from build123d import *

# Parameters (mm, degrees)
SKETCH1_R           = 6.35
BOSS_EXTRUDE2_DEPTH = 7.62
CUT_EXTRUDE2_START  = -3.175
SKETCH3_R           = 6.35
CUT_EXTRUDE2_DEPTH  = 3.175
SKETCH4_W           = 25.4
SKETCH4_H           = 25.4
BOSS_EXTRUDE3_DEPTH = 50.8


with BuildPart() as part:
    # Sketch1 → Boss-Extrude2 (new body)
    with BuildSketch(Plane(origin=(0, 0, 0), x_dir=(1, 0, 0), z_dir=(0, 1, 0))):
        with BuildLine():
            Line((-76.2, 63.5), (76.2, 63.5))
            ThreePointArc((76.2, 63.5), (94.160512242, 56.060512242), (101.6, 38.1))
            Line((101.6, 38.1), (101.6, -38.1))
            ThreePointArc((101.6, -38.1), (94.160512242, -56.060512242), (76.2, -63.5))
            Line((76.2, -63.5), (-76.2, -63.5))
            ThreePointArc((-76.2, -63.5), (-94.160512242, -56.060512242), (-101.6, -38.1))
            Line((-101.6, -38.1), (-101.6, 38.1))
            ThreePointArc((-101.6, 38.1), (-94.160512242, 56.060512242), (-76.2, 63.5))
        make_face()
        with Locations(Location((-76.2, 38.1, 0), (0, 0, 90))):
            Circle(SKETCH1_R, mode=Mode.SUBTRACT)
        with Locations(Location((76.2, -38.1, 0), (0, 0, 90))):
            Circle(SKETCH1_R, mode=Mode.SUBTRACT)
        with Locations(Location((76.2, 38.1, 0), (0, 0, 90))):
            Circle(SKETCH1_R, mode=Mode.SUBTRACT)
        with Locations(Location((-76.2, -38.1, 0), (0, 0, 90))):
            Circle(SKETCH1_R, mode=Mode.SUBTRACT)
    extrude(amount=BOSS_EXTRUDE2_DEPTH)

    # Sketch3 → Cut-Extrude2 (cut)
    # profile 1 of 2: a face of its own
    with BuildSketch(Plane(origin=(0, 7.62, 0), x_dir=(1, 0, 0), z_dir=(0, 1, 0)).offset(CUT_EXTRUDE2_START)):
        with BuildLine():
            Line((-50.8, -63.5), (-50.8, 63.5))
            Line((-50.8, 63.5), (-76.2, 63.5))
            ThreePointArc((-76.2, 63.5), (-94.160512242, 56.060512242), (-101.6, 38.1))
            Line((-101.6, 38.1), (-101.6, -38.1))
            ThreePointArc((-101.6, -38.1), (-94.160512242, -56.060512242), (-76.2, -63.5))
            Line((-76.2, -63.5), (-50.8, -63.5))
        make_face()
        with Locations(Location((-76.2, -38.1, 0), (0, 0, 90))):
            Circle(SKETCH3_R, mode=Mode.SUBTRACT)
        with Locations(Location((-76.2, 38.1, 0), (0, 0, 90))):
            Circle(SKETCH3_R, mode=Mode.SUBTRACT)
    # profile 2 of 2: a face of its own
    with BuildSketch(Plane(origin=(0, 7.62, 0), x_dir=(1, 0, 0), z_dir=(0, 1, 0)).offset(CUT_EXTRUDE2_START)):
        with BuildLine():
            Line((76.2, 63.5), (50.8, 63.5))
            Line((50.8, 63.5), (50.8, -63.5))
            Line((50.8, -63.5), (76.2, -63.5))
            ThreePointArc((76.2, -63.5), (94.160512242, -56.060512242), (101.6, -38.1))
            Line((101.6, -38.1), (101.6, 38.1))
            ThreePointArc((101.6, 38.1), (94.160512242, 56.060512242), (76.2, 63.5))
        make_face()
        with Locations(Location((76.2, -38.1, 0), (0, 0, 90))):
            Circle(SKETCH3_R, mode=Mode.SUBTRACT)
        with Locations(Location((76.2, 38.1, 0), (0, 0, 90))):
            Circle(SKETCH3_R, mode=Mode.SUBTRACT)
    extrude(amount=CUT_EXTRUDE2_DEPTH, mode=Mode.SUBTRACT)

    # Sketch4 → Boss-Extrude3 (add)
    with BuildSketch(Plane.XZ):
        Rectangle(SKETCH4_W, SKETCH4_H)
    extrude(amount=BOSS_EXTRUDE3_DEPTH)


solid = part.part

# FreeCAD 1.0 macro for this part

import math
import FreeCAD as App
import Part
import Sketcher

V = App.Vector
Q = App.Units.Quantity

doc = App.newDocument("Part")
body = doc.addObject("PartDesign::Body", "Body")

# Sketch on XZ plane
sketch1 = body.newObject("Sketcher::SketchObject", "Sketch")
sketch1.AttachmentSupport = (doc.getObject("XZ_Plane"), [""])
sketch1.MapMode = "FlatFace"
sketch1.addGeometry(Part.LineSegment(V(76, -64, 0), V(-76, -64, 0)), False)
sketch1.addGeometry(Part.ArcOfCircle(Part.Circle(V(-76, -38, 0), V(0, 0, 1), 25), math.radians(180), math.radians(270)), False)
sketch1.addGeometry(Part.LineSegment(V(-102, -38, 0), V(-102, 38, 0)), False)
sketch1.addGeometry(Part.ArcOfCircle(Part.Circle(V(-76, 38, 0), V(0, 0, 1), 25), math.radians(90), math.radians(180)), False)
sketch1.addGeometry(Part.LineSegment(V(-76, 64, 0), V(76, 64, 0)), False)
sketch1.addGeometry(Part.ArcOfCircle(Part.Circle(V(76, 38, 0), V(0, 0, 1), 25), math.radians(0), math.radians(90)), False)
sketch1.addGeometry(Part.LineSegment(V(102, 38, 0), V(102, -38, 0)), False)
sketch1.addGeometry(Part.ArcOfCircle(Part.Circle(V(76, -38, 0), V(0, 0, 1), 25), math.radians(-90), math.radians(0)), False)
sketch1.addGeometry(Part.Circle(V(76, 38, 0), V(0, 0, 1), 6), False)
sketch1.addGeometry(Part.Circle(V(-76, 38, 0), V(0, 0, 1), 6), False)
sketch1.addGeometry(Part.Circle(V(76, -38, 0), V(0, 0, 1), 6), False)
sketch1.addGeometry(Part.Circle(V(-76, -38, 0), V(0, 0, 1), 6), False)
sketch1.addConstraint(Sketcher.Constraint("Tangent", 0, 2, 1, 2))
sketch1.addConstraint(Sketcher.Constraint("Tangent", 1, 1, 2, 1))
sketch1.addConstraint(Sketcher.Constraint("Tangent", 2, 2, 3, 2))
sketch1.addConstraint(Sketcher.Constraint("Tangent", 3, 1, 4, 1))
sketch1.addConstraint(Sketcher.Constraint("Tangent", 4, 2, 5, 2))
sketch1.addConstraint(Sketcher.Constraint("Tangent", 5, 1, 6, 1))
sketch1.addConstraint(Sketcher.Constraint("Tangent", 6, 2, 7, 2))
sketch1.addConstraint(Sketcher.Constraint("Tangent", 7, 1, 0, 1))
sketch1.addConstraint(Sketcher.Constraint("Horizontal", 0))
sketch1.addConstraint(Sketcher.Constraint("Vertical", 2))
sketch1.addConstraint(Sketcher.Constraint("Horizontal", 4))
sketch1.addConstraint(Sketcher.Constraint("Vertical", 6))
sketch1.addConstraint(Sketcher.Constraint("Coincident", 8, 3, 5, 3))
sketch1.addConstraint(Sketcher.Constraint("Coincident", 9, 3, 3, 3))
sketch1.addConstraint(Sketcher.Constraint("Coincident", 10, 3, 7, 3))
sketch1.addConstraint(Sketcher.Constraint("Coincident", 11, 3, 1, 3))
sketch1.addConstraint(Sketcher.Constraint("Equal", 1, 3))
sketch1.addConstraint(Sketcher.Constraint("Equal", 3, 5))
sketch1.addConstraint(Sketcher.Constraint("Equal", 5, 7))
sketch1.addConstraint(Sketcher.Constraint("Equal", 8, 9))
sketch1.addConstraint(Sketcher.Constraint("Equal", 9, 10))
sketch1.addConstraint(Sketcher.Constraint("Equal", 10, 11))
sketch1.addConstraint(Sketcher.Constraint("Symmetric", 1, 3, 5, 3, -1, 1))
sketch1.addConstraint(Sketcher.Constraint("Radius", 1, Q("1 in")))
sketch1.addConstraint(Sketcher.Constraint("Diameter", 8, Q("0.5 in")))
sketch1.addConstraint(Sketcher.Constraint("DistanceX", 0, 2, 0, 1, Q("6 in")))
sketch1.addConstraint(Sketcher.Constraint("DistanceY", 2, 1, 2, 2, Q("3 in")))
pad1 = body.newObject("PartDesign::Pad", "Pad")
pad1.Profile = sketch1
pad1.Length = Q("0.3 in")
pad1.Reversed = True

# Sketch on XZ plane
sketch2 = body.newObject("Sketcher::SketchObject", "Sketch001")
sketch2.AttachmentSupport = (doc.getObject("XZ_Plane"), [""])
sketch2.MapMode = "FlatFace"
sketch2.AttachmentOffset = App.Placement(V(0, 0, -0.175 * 25.4), App.Rotation())
sketch2.addGeometry(Part.LineSegment(V(-51, 64, 0), V(-51, -64, 0)), False)
sketch2.addGeometry(Part.LineSegment(V(-51, -64, 0), V(-76, -64, 0)), False)
sketch2.addGeometry(Part.ArcOfCircle(Part.Circle(V(-76, -38, 0), V(0, 0, 1), 25), math.radians(180), math.radians(270)), False)
sketch2.addGeometry(Part.LineSegment(V(-102, -38, 0), V(-102, 38, 0)), False)
sketch2.addGeometry(Part.ArcOfCircle(Part.Circle(V(-76, 38, 0), V(0, 0, 1), 25), math.radians(90), math.radians(180)), False)
sketch2.addGeometry(Part.LineSegment(V(-76, 64, 0), V(-51, 64, 0)), False)
sketch2.addGeometry(Part.Circle(V(-76, 38, 0), V(0, 0, 1), 6), False)
sketch2.addGeometry(Part.Circle(V(-76, -38, 0), V(0, 0, 1), 6), False)
sketch2.addGeometry(Part.LineSegment(V(76, -64, 0), V(51, -64, 0)), False)
sketch2.addGeometry(Part.LineSegment(V(51, -64, 0), V(51, 64, 0)), False)
sketch2.addGeometry(Part.LineSegment(V(51, 64, 0), V(76, 64, 0)), False)
sketch2.addGeometry(Part.ArcOfCircle(Part.Circle(V(76, 38, 0), V(0, 0, 1), 25), math.radians(0), math.radians(90)), False)
sketch2.addGeometry(Part.LineSegment(V(102, 38, 0), V(102, -38, 0)), False)
sketch2.addGeometry(Part.ArcOfCircle(Part.Circle(V(76, -38, 0), V(0, 0, 1), 25), math.radians(-90), math.radians(0)), False)
sketch2.addGeometry(Part.Circle(V(76, 38, 0), V(0, 0, 1), 6), False)
sketch2.addGeometry(Part.Circle(V(76, -38, 0), V(0, 0, 1), 6), False)
sketch2.addConstraint(Sketcher.Constraint("Coincident", 0, 2, 1, 1))
sketch2.addConstraint(Sketcher.Constraint("Tangent", 1, 2, 2, 2))
sketch2.addConstraint(Sketcher.Constraint("Tangent", 2, 1, 3, 1))
sketch2.addConstraint(Sketcher.Constraint("Tangent", 3, 2, 4, 2))
sketch2.addConstraint(Sketcher.Constraint("Tangent", 4, 1, 5, 1))
sketch2.addConstraint(Sketcher.Constraint("Coincident", 5, 2, 0, 1))
sketch2.addConstraint(Sketcher.Constraint("Coincident", 8, 2, 9, 1))
sketch2.addConstraint(Sketcher.Constraint("Coincident", 9, 2, 10, 1))
sketch2.addConstraint(Sketcher.Constraint("Tangent", 10, 2, 11, 2))
sketch2.addConstraint(Sketcher.Constraint("Tangent", 11, 1, 12, 1))
sketch2.addConstraint(Sketcher.Constraint("Tangent", 12, 2, 13, 2))
sketch2.addConstraint(Sketcher.Constraint("Tangent", 13, 1, 8, 1))
sketch2.addConstraint(Sketcher.Constraint("Vertical", 0))
sketch2.addConstraint(Sketcher.Constraint("Horizontal", 1))
sketch2.addConstraint(Sketcher.Constraint("Vertical", 3))
sketch2.addConstraint(Sketcher.Constraint("Horizontal", 5))
sketch2.addConstraint(Sketcher.Constraint("Horizontal", 8))
sketch2.addConstraint(Sketcher.Constraint("Vertical", 9))
sketch2.addConstraint(Sketcher.Constraint("Horizontal", 10))
sketch2.addConstraint(Sketcher.Constraint("Vertical", 12))
sketch2.addConstraint(Sketcher.Constraint("Coincident", 6, 3, 4, 3))
sketch2.addConstraint(Sketcher.Constraint("Coincident", 7, 3, 2, 3))
sketch2.addConstraint(Sketcher.Constraint("Coincident", 14, 3, 11, 3))
sketch2.addConstraint(Sketcher.Constraint("Coincident", 15, 3, 13, 3))
sketch2.addConstraint(Sketcher.Constraint("Equal", 2, 4))
sketch2.addConstraint(Sketcher.Constraint("Equal", 6, 7))
sketch2.addConstraint(Sketcher.Constraint("Equal", 4, 11))
sketch2.addConstraint(Sketcher.Constraint("Equal", 11, 13))
sketch2.addConstraint(Sketcher.Constraint("Equal", 7, 14))
sketch2.addConstraint(Sketcher.Constraint("Equal", 14, 15))
sketch2.addConstraint(Sketcher.Constraint("Symmetric", 2, 3, 11, 3, -1, 1))
sketch2.addConstraint(Sketcher.Constraint("Symmetric", 5, 2, 8, 2, -1, 1))
sketch2.addConstraint(Sketcher.Constraint("Horizontal", 6, 3, 11, 3))
sketch2.addConstraint(Sketcher.Constraint("Radius", 2, Q("1 in")))
sketch2.addConstraint(Sketcher.Constraint("Diameter", 6, Q("0.5 in")))
sketch2.addConstraint(Sketcher.Constraint("DistanceX", 1, 2, 1, 1, Q("1 in")))
sketch2.addConstraint(Sketcher.Constraint("DistanceY", 0, 2, 0, 1, Q("5 in")))
sketch2.addConstraint(Sketcher.Constraint("DistanceX", 2, 3, -1, 1, Q("3 in")))
pocket1 = body.newObject("PartDesign::Pocket", "Pocket")
pocket1.Profile = sketch2
pocket1.Length = Q("0.125 in")

# Sketch on XZ plane
sketch3 = body.newObject("Sketcher::SketchObject", "Sketch002")
sketch3.AttachmentSupport = (doc.getObject("XZ_Plane"), [""])
sketch3.MapMode = "FlatFace"
sketch3.addGeometry(Part.LineSegment(V(-13, 13, 0), V(-13, -13, 0)), False)
sketch3.addGeometry(Part.LineSegment(V(-13, -13, 0), V(13, -13, 0)), False)
sketch3.addGeometry(Part.LineSegment(V(13, -13, 0), V(13, 13, 0)), False)
sketch3.addGeometry(Part.LineSegment(V(13, 13, 0), V(-13, 13, 0)), False)
sketch3.addConstraint(Sketcher.Constraint("Coincident", 0, 2, 1, 1))
sketch3.addConstraint(Sketcher.Constraint("Coincident", 1, 2, 2, 1))
sketch3.addConstraint(Sketcher.Constraint("Coincident", 2, 2, 3, 1))
sketch3.addConstraint(Sketcher.Constraint("Coincident", 3, 2, 0, 1))
sketch3.addConstraint(Sketcher.Constraint("Vertical", 0))
sketch3.addConstraint(Sketcher.Constraint("Horizontal", 1))
sketch3.addConstraint(Sketcher.Constraint("Vertical", 2))
sketch3.addConstraint(Sketcher.Constraint("Horizontal", 3))
sketch3.addConstraint(Sketcher.Constraint("Symmetric", 0, 2, 2, 2, -1, 1))
sketch3.addConstraint(Sketcher.Constraint("Equal", 3, 0))
sketch3.addConstraint(Sketcher.Constraint("DistanceX", 1, 1, 1, 2, Q("1 in")))
pad2 = body.newObject("PartDesign::Pad", "Pad001")
pad2.Profile = sketch3
pad2.Length = Q("2 in")

doc.recompute()
